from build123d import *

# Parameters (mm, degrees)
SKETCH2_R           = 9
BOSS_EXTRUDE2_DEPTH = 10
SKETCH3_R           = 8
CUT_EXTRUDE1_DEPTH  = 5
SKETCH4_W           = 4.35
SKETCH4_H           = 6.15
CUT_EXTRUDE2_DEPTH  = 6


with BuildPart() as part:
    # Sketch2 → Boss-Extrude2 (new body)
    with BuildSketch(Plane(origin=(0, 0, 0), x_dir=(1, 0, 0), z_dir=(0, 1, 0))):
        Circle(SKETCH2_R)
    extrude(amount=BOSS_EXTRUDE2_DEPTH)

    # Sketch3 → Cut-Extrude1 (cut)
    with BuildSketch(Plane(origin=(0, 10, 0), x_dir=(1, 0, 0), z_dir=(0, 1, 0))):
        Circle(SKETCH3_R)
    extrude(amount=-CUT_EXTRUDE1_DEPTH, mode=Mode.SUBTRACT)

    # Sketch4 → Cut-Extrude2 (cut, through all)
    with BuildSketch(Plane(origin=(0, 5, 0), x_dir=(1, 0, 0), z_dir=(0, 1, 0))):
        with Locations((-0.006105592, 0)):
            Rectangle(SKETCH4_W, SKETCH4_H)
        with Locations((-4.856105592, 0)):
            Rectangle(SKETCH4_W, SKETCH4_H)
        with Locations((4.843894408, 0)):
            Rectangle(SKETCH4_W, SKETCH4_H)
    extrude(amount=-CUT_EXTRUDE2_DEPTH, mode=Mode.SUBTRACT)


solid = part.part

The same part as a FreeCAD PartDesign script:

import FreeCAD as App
import Part
import Sketcher
from FreeCAD import Vector


def add_polygon(sketch, points):
    """Adds a closed chain of lines whose ends are joined by coincident constraints."""
    first, n = sketch.GeometryCount, len(points)
    for a, b in zip(points, points[1:] + points[:1]):
        sketch.addGeometry(Part.LineSegment(App.Vector(*a, 0), App.Vector(*b, 0)), False)
    for i in range(n):
        sketch.addConstraint(Sketcher.Constraint("Coincident", first + i, 2, first + (i + 1) % n, 1))

doc = App.newDocument("Part")
body = doc.addObject("PartDesign::Body", "Body")

sketch1 = body.newObject("Sketcher::SketchObject", "Sketch")
sketch1.AttachmentSupport = (doc.getObject("XZ_Plane"), [""])
sketch1.MapMode = "FlatFace"
sketch1.addGeometry(Part.Circle(Vector(0, 0, 0), Vector(0, 0, 1), 9), False)
sketch1.addConstraint([
    Sketcher.Constraint("Coincident", 0, 3, -1, 1),
    Sketcher.Constraint("Diameter", 0, 18.0),
])
pad1 = body.newObject("PartDesign::Pad", "Pad")
pad1.Profile = sketch1
pad1.Length = 10
pad1.Reversed = True

sketch2 = body.newObject("Sketcher::SketchObject", "Sketch001")
sketch2.AttachmentSupport = (doc.getObject("XZ_Plane"), [""])
sketch2.MapMode = "FlatFace"
sketch2.AttachmentOffset = App.Placement(Vector(0, 0, -10), App.Rotation())
sketch2.addGeometry(Part.Circle(Vector(0, 0, 0), Vector(0, 0, 1), 8), False)
sketch2.addConstraint([
    Sketcher.Constraint("Coincident", 0, 3, -1, 1),
    Sketcher.Constraint("Diameter", 0, 16.0),
])
pocket1 = body.newObject("PartDesign::Pocket", "Pocket")
pocket1.Profile = sketch2
pocket1.Length = 5
pocket1.Reversed = True

sketch3 = body.newObject("Sketcher::SketchObject", "Sketch002")
sketch3.AttachmentSupport = (doc.getObject("XZ_Plane"), [""])
sketch3.MapMode = "FlatFace"
sketch3.AttachmentOffset = App.Placement(Vector(0, 0, -5), App.Rotation())
add_polygon(sketch3, [(-2.2, -3.1), (-2.2, 3.1), (2.2, 3.1), (2.2, -3.1)])
add_polygon(sketch3, [(-7, -3.1), (-7, 3.1), (-2.7, 3.1), (-2.7, -3.1)])
add_polygon(sketch3, [(2.7, -3.1), (2.7, 3.1), (7, 3.1), (7, -3.1)])
sketch3.addConstraint([
    Sketcher.Constraint("Vertical", 0),
    Sketcher.Constraint("Horizontal", 1),
    Sketcher.Constraint("Vertical", 2),
    Sketcher.Constraint("Horizontal", 3),
    Sketcher.Constraint("Vertical", 4),
    Sketcher.Constraint("Horizontal", 5),
    Sketcher.Constraint("Vertical", 6),
    Sketcher.Constraint("Horizontal", 7),
    Sketcher.Constraint("Vertical", 8),
    Sketcher.Constraint("Horizontal", 9),
    Sketcher.Constraint("Vertical", 10),
    Sketcher.Constraint("Horizontal", 11),
    Sketcher.Constraint("Horizontal", 1, 2, 4, 2),
    Sketcher.Constraint("Horizontal", 3, 2, 6, 2),
    Sketcher.Constraint("Horizontal", 5, 2, 8, 2),
    Sketcher.Constraint("Horizontal", 7, 2, 10, 2),
    Sketcher.Constraint("Equal", 3, 5),
    Sketcher.Constraint("Equal", 7, 9),
    Sketcher.Constraint("DistanceX", 1, 1, 1, 2, 4.35),
    Sketcher.Constraint("DistanceY", 0, 1, 0, 2, 6.15),
    Sketcher.Constraint("DistanceX", 4, 2, 1, 2, 9.2),
    Sketcher.Constraint("DistanceX", 1, 2, 8, 2, 0.5),
    Sketcher.Constraint("DistanceY", -1, 1, 0, 2, 3.075),
    Sketcher.Constraint("DistanceX", 0, 2, -1, 1, 2.181106),
])
pocket2 = body.newObject("PartDesign::Pocket", "Pocket001")
pocket2.Profile = sketch3
pocket2.Type = "ThroughAll"
pocket2.Reversed = True

doc.recompute()
